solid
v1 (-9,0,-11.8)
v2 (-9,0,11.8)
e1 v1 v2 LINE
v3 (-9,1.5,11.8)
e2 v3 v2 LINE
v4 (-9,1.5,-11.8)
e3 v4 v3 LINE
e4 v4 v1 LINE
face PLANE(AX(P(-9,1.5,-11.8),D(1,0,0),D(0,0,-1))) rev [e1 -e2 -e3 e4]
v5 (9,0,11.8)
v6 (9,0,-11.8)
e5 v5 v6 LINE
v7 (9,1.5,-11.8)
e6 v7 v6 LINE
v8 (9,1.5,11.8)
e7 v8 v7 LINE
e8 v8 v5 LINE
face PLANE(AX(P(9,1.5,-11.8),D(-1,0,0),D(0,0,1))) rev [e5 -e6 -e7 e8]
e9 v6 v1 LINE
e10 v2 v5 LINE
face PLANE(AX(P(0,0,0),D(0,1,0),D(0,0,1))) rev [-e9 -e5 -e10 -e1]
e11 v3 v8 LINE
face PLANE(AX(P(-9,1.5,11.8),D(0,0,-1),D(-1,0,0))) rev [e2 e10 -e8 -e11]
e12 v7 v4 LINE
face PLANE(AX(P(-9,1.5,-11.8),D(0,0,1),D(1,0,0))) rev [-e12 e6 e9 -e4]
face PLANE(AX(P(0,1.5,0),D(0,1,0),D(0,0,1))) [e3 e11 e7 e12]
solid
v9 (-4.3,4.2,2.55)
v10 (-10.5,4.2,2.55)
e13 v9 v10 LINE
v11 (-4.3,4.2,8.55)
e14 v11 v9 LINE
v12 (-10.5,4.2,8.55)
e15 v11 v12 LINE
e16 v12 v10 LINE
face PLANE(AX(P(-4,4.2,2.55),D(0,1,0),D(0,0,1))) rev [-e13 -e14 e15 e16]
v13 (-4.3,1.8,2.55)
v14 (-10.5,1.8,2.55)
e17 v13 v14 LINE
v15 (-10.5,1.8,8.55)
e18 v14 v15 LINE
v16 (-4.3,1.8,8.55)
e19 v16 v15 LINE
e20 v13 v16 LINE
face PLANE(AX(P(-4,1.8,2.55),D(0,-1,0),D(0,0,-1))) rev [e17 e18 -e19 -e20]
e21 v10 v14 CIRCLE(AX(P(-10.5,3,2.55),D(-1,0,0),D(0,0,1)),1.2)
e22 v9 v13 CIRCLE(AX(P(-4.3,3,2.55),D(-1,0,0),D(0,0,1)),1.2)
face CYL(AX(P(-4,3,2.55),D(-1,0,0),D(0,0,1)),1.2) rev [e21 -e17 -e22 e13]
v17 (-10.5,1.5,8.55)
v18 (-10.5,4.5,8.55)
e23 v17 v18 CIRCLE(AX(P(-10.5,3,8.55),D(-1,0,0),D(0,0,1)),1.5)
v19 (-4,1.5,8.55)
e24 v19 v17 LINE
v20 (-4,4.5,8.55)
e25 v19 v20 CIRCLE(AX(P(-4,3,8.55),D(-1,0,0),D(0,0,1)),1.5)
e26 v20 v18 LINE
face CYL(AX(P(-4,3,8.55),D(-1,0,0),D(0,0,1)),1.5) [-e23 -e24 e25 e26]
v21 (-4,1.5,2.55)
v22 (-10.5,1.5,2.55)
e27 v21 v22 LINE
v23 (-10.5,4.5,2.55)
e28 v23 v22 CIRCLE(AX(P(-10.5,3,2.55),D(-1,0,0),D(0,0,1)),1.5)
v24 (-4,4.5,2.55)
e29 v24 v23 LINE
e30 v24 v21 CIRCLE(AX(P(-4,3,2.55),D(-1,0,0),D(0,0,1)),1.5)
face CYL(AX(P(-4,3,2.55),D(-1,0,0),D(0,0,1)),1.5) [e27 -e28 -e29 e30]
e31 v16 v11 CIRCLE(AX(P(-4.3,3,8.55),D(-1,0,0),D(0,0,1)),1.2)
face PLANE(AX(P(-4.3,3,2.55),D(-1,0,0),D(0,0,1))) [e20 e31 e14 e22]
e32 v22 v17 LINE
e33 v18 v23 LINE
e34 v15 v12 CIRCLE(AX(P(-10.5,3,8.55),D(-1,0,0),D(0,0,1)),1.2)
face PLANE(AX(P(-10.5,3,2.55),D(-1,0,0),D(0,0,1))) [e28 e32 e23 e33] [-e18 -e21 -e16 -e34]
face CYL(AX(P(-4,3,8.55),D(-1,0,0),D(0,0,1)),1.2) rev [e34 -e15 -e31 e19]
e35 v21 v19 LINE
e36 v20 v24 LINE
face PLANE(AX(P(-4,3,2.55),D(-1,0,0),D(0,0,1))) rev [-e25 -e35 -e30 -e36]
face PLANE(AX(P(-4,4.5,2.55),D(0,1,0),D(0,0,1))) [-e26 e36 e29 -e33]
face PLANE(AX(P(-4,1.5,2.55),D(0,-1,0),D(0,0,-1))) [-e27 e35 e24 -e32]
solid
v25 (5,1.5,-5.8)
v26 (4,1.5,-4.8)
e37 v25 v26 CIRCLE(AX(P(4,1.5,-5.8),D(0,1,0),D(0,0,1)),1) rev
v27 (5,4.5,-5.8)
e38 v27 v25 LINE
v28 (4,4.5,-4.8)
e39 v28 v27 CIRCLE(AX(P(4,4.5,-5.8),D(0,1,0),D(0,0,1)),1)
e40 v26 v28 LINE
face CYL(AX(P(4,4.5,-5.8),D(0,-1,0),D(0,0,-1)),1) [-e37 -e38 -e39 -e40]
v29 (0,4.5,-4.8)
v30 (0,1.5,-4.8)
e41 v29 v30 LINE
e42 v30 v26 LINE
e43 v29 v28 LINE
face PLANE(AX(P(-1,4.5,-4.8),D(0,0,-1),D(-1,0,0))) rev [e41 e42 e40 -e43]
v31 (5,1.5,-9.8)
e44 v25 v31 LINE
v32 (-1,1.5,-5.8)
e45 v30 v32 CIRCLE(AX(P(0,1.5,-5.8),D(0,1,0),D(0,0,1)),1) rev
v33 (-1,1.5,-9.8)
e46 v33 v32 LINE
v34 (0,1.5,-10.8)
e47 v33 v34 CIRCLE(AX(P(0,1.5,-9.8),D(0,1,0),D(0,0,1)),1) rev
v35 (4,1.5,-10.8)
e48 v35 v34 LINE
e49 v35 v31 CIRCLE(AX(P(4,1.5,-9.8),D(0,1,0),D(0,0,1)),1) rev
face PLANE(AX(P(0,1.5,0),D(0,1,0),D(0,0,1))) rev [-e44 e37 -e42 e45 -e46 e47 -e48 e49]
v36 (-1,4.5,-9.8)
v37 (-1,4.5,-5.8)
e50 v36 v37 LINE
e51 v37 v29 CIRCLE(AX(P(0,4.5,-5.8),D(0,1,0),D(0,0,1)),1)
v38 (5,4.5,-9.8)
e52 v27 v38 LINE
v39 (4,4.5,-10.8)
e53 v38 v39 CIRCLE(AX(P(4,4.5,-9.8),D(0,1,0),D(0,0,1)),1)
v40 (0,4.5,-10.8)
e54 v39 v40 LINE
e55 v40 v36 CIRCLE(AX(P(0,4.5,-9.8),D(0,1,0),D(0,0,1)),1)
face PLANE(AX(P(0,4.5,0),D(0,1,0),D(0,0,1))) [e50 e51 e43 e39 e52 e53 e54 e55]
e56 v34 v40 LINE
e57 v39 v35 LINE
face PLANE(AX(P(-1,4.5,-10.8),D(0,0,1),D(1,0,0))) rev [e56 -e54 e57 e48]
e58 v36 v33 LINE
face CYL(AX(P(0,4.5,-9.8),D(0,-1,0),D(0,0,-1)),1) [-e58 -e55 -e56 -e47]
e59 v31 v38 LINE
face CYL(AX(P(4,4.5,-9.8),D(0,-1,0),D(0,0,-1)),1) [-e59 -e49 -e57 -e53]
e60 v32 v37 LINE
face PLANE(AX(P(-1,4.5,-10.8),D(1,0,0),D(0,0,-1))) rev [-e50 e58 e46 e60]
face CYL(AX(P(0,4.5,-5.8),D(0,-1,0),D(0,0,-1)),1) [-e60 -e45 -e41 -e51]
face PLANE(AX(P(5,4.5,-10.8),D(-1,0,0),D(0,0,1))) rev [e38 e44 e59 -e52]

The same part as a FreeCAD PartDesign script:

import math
import FreeCAD as App
import Part
import Sketcher
from FreeCAD import Vector


def edges_at(feature, points):
    """Names of the edges that pass closest to the given points."""
    edges = feature.Shape.Edges
    near = lambda p: min(range(len(edges)), key=lambda i: edges[i].distToShape(Part.Vertex(*p))[0])
    return sorted({f"Edge{near(p) + 1}" for p in points})


def faces_at(feature, points):
    """Names of the faces that lie closest to the given points."""
    faces = feature.Shape.Faces
    near = lambda p: min(range(len(faces)), key=lambda i: faces[i].distToShape(Part.Vertex(*p))[0])
    return sorted({f"Face{near(p) + 1}" for p in points})

doc = App.newDocument("Part")
body = doc.addObject("PartDesign::Body", "Body")

sketch1 = body.newObject("Sketcher::SketchObject", "Sketch")
sketch1.AttachmentSupport = (doc.getObject("XZ_Plane"), [""])
sketch1.MapMode = "FlatFace"
sketch1.addGeometry([
    Part.LineSegment(Vector(-9, -11.8, 0), Vector(-9, 11.8, 0)),
    Part.LineSegment(Vector(-9, 11.8, 0), Vector(9, 11.8, 0)),
    Part.LineSegment(Vector(9, 11.8, 0), Vector(9, -11.8, 0)),
    Part.LineSegment(Vector(9, -11.8, 0), Vector(-9, -11.8, 0)),
], False)
sketch1.addConstraint([
    Sketcher.Constraint("Coincident", 0, 2, 1, 1),
    Sketcher.Constraint("Coincident", 1, 2, 2, 1),
    Sketcher.Constraint("Coincident", 2, 2, 3, 1),
    Sketcher.Constraint("Coincident", 3, 2, 0, 1),
    Sketcher.Constraint("Vertical", 0),
    Sketcher.Constraint("Horizontal", 1),
    Sketcher.Constraint("Vertical", 2),
    Sketcher.Constraint("Horizontal", 3),
    Sketcher.Constraint("Symmetric", 0, 2, 2, 2, -1, 1),
    Sketcher.Constraint("DistanceX", 1, 1, 1, 2, 18.0),
    Sketcher.Constraint("DistanceY", 0, 1, 0, 2, 23.6),
])
pad1 = body.newObject("PartDesign::Pad", "Pad")
pad1.Profile = sketch1
pad1.Length = 1.5
pad1.Reversed = True
body2 = doc.addObject("PartDesign::Body", "Body001")

sketch2 = body2.newObject("Sketcher::SketchObject", "Sketch001")
sketch2.AttachmentSupport = (doc.getObject("YZ_Plane001"), [""])
sketch2.MapMode = "FlatFace"
sketch2.AttachmentOffset = App.Placement(Vector(0, 0, -9), App.Rotation())
sketch2.addGeometry([
    Part.LineSegment(Vector(4.5, 8.55, 0), Vector(4.5, 2.55, 0)),
    Part.ArcOfCircle(Part.Circle(Vector(3, 2.55, 0), Vector(0, 0, 1), 1.5), math.radians(180), math.radians(360)),
    Part.LineSegment(Vector(1.5, 2.55, 0), Vector(1.5, 8.55, 0)),
    Part.ArcOfCircle(Part.Circle(Vector(3, 8.55, 0), Vector(0, 0, 1), 1.5), math.radians(0), math.radians(180)),
], False)
sketch2.addConstraint([
    Sketcher.Constraint("Tangent", 0, 2, 1, 2),
    Sketcher.Constraint("Tangent", 1, 1, 2, 1),
    Sketcher.Constraint("Tangent", 2, 2, 3, 2),
    Sketcher.Constraint("Tangent", 3, 1, 0, 1),
    Sketcher.Constraint("Vertical", 0),
    Sketcher.Constraint("Vertical", 2),
    Sketcher.Constraint("Radius", 1, 1.5),
    Sketcher.Constraint("DistanceY", 0, 2, 0, 1, 6.0),
    Sketcher.Constraint("DistanceX", -1, 1, 1, 3, 3.0),
    Sketcher.Constraint("DistanceY", -1, 1, 1, 3, 2.55),
])
pad2 = body2.newObject("PartDesign::Pad", "Pad001")
pad2.Profile = sketch2
pad2.Type = "TwoLengths"
pad2.Length = 1.5
pad2.Length2 = 5
pad2.Reversed = True
doc.recompute()

thickness = body2.newObject("PartDesign::Thickness", "Thickness")
thickness.Base = (pad2, faces_at(pad2, [(-10.5, 3, 5.55)]))
thickness.Value = 0.3
thickness.Reversed = True
thickness.Join = "Intersection"
body3 = doc.addObject("PartDesign::Body", "Body002")

sketch3 = body3.newObject("Sketcher::SketchObject", "Sketch002")
sketch3.AttachmentSupport = (doc.getObject("XZ_Plane002"), [""])
sketch3.MapMode = "FlatFace"
sketch3.AttachmentOffset = App.Placement(Vector(0, 0, -1.5), App.Rotation())
sketch3.addGeometry([
    Part.LineSegment(Vector(-1, -10.8, 0), Vector(-1, -4.8, 0)),
    Part.LineSegment(Vector(-1, -4.8, 0), Vector(5, -4.8, 0)),
    Part.LineSegment(Vector(5, -4.8, 0), Vector(5, -10.8, 0)),
    Part.LineSegment(Vector(5, -10.8, 0), Vector(-1, -10.8, 0)),
], False)
sketch3.addConstraint([
    Sketcher.Constraint("Coincident", 0, 2, 1, 1),
    Sketcher.Constraint("Coincident", 1, 2, 2, 1),
    Sketcher.Constraint("Coincident", 2, 2, 3, 1),
    Sketcher.Constraint("Coincident", 3, 2, 0, 1),
    Sketcher.Constraint("Vertical", 0),
    Sketcher.Constraint("Horizontal", 1),
    Sketcher.Constraint("Vertical", 2),
    Sketcher.Constraint("Horizontal", 3),
    Sketcher.Constraint("Equal", 3, 0),
    Sketcher.Constraint("DistanceX", 1, 1, 1, 2, 6.0),
    Sketcher.Constraint("DistanceX", 0, 2, -1, 1, 1.0),
    Sketcher.Constraint("DistanceY", 0, 2, -1, 1, 4.8),
])
pad3 = body3.newObject("PartDesign::Pad", "Pad002")
pad3.Profile = sketch3
pad3.Length = 3
pad3.Reversed = True
doc.recompute()

fillet = body3.newObject("PartDesign::Fillet", "Fillet")
fillet.Base = (pad3, edges_at(pad3, [
    (-1, 3, -10.8),
    (5, 3, -10.8),
    (5, 3, -4.8),
    (-1, 3, -4.8),
]))
fillet.Radius = 1

doc.recompute()
